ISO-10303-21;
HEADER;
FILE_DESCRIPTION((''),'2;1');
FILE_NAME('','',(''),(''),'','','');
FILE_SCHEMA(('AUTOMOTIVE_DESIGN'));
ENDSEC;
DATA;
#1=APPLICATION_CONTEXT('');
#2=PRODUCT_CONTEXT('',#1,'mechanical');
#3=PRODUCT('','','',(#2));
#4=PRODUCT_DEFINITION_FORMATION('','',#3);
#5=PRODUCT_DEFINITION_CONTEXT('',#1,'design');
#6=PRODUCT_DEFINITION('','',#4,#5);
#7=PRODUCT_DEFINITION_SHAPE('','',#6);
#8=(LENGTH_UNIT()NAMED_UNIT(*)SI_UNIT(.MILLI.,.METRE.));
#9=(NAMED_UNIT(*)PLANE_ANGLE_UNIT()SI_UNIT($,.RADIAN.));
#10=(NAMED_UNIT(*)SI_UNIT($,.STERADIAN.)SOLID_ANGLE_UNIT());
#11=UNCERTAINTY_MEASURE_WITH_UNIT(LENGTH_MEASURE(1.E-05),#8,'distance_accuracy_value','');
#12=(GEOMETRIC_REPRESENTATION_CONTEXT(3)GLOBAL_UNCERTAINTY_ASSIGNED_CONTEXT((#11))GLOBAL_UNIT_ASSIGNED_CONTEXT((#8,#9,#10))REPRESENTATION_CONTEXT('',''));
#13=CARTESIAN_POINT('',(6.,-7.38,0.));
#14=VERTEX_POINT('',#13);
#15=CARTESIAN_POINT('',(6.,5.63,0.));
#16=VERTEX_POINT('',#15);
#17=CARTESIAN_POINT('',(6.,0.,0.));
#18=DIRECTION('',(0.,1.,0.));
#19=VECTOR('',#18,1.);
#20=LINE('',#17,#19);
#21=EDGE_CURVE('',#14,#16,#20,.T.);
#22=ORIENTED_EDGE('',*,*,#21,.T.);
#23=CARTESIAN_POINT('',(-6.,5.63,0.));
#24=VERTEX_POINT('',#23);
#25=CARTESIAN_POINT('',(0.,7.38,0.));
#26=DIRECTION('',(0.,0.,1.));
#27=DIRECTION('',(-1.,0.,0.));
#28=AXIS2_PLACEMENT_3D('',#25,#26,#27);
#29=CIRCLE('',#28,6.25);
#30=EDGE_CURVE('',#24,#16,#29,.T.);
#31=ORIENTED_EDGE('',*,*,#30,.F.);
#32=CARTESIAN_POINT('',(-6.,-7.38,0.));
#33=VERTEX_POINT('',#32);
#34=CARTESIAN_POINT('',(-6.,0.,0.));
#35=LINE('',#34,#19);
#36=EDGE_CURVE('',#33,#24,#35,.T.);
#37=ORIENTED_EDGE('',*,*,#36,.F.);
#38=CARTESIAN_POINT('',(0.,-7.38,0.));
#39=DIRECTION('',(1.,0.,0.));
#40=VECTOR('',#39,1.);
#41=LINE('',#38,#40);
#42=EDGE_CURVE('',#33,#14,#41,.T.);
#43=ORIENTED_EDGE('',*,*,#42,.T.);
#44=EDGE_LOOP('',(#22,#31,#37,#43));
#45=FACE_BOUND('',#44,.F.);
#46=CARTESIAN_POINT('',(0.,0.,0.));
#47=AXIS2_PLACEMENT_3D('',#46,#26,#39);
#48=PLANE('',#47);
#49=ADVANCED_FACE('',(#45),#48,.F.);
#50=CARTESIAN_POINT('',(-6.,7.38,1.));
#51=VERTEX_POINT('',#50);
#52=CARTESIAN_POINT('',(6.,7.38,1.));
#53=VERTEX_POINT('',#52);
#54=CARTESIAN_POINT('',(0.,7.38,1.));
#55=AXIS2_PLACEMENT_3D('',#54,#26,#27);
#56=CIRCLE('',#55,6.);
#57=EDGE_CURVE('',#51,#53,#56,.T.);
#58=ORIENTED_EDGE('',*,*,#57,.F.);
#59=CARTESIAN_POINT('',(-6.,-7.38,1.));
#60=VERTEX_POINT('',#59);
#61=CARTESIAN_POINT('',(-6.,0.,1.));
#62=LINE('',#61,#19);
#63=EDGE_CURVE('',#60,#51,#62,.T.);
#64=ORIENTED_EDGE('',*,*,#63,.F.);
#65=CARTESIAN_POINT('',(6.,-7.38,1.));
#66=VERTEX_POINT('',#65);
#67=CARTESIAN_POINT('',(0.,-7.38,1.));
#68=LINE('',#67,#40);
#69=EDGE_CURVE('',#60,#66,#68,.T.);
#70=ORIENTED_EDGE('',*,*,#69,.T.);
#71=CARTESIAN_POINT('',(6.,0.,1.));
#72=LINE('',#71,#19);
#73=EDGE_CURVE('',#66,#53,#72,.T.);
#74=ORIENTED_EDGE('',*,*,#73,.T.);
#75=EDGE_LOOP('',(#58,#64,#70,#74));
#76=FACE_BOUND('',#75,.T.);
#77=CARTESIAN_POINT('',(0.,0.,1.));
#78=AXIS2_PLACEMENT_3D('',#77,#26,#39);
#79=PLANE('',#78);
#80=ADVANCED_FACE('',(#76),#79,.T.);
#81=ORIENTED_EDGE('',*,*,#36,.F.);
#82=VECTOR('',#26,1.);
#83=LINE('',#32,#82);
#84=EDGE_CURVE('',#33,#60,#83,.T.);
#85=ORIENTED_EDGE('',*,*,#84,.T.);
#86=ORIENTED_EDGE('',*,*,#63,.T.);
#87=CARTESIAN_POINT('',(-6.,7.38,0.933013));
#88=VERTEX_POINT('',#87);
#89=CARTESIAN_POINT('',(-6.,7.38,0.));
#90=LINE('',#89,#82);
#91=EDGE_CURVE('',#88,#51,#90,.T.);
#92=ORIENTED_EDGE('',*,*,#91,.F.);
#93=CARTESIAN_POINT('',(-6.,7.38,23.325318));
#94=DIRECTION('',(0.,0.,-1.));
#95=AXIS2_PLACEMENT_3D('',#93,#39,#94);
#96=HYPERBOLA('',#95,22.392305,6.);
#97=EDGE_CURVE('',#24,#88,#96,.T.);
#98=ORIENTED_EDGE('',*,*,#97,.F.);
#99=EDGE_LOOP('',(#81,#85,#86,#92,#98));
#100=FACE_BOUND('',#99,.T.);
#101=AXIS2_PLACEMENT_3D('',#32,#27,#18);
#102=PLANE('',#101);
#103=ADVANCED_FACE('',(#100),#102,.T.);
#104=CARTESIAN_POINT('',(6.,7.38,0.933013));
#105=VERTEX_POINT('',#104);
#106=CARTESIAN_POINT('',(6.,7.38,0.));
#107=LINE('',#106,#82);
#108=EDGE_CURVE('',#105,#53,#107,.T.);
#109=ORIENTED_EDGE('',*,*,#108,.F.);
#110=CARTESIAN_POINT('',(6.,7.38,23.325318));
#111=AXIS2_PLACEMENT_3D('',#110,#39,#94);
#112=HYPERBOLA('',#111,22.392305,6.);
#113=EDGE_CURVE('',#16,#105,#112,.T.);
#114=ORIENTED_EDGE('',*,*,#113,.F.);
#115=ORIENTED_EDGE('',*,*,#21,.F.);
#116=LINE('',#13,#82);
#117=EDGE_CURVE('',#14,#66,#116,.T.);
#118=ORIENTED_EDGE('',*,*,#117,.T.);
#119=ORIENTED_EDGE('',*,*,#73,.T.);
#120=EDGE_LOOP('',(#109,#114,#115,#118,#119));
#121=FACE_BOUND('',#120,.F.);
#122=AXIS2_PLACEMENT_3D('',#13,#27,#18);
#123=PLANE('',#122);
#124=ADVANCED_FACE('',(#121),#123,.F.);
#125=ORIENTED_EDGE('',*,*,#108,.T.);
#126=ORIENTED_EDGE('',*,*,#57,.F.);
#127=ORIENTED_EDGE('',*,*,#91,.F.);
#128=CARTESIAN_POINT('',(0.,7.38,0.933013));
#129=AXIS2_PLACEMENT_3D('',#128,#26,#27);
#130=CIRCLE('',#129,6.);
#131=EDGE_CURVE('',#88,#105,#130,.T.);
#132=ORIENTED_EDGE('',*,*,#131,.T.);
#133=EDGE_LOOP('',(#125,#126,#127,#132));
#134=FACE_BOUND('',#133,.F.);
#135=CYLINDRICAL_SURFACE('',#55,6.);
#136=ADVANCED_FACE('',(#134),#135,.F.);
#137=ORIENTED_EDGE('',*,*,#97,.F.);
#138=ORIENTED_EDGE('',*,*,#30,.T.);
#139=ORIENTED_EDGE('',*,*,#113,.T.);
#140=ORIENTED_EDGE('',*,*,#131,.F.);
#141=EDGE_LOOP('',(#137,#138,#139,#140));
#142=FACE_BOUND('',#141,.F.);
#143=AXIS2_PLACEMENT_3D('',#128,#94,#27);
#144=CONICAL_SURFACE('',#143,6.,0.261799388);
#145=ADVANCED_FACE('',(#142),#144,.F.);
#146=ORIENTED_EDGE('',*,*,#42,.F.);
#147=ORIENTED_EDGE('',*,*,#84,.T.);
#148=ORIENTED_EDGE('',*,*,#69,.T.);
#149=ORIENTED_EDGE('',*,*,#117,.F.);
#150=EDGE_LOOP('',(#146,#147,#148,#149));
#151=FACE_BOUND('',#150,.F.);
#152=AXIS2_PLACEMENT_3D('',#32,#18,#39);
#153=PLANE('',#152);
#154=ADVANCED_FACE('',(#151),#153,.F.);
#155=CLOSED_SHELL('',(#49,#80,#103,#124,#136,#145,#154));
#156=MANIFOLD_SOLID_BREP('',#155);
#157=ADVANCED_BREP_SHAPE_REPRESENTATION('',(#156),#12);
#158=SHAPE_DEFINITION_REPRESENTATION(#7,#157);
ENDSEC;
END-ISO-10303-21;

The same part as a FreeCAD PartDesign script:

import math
import FreeCAD as App
import Part
import Sketcher
from FreeCAD import Vector


def edges_at(feature, points):
    """Names of the edges that pass closest to the given points."""
    edges = feature.Shape.Edges
    near = lambda p: min(range(len(edges)), key=lambda i: edges[i].distToShape(Part.Vertex(*p))[0])
    return sorted({f"Edge{near(p) + 1}" for p in points})


def add_polygon(sketch, points):
    """Adds a closed chain of lines whose ends are joined by coincident constraints."""
    first, n = sketch.GeometryCount, len(points)
    for a, b in zip(points, points[1:] + points[:1]):
        sketch.addGeometry(Part.LineSegment(App.Vector(*a, 0), App.Vector(*b, 0)), False)
    for i in range(n):
        sketch.addConstraint(Sketcher.Constraint("Coincident", first + i, 2, first + (i + 1) % n, 1))

doc = App.newDocument("Part")
body = doc.addObject("PartDesign::Body", "Body")

# Sketch on XY plane
sketch1 = doc.addObject("Sketcher::SketchObject", "Sketch")
body.addObject(sketch1)
sketch1.AttachmentSupport = (doc.XY_Plane, [""])
sketch1.MapMode = "FlatFace"
add_polygon(sketch1, [(-6, 7), (-6, -7), (6, -7), (6, 7)])  # lines 0-3
sketch1.addConstraint([
    Sketcher.Constraint("Vertical", 0),
    Sketcher.Constraint("Horizontal", 1),
    Sketcher.Constraint("Vertical", 2),
    Sketcher.Constraint("Horizontal", 3),
    Sketcher.Constraint("Symmetric", 0, 2, 2, 2, -1, 1),
    Sketcher.Constraint("DistanceX", 1, 1, 1, 2, 12.0),
    Sketcher.Constraint("DistanceY", 0, 2, 0, 1, 14.76),
])
pad1 = doc.addObject("PartDesign::Pad", "Pad")
body.addObject(pad1)
pad1.Profile = sketch1
pad1.Length = 1

# Sketch on XY plane
sketch2 = doc.addObject("Sketcher::SketchObject", "Sketch001")
body.addObject(sketch2)
sketch2.AttachmentSupport = (doc.XY_Plane, [""])
sketch2.MapMode = "FlatFace"
sketch2.AttachmentOffset = App.Placement(Vector(0, 0, 1), App.Rotation())
sketch2.addGeometry([
    Part.ArcOfCircle(Part.Circle(Vector(0, 7, 0), Vector(0, 0, 1), 6), math.radians(180), math.radians(360)),
    Part.LineSegment(Vector(6, 7, 0), Vector(-6, 7, 0)),
], False)
sketch2.addConstraint([
    Sketcher.Constraint("Coincident", 0, 1, 1, 2),
    Sketcher.Constraint("Coincident", 1, 1, 0, 2),
    Sketcher.Constraint("Horizontal", 1),
    Sketcher.Constraint("PointOnObject", 0, 3, -2),
    Sketcher.Constraint("Radius", 0, 6.0),
    Sketcher.Constraint("DistanceY", -1, 1, 0, 3, 7.38),
    Sketcher.Constraint("DistanceY", -1, 1, 0, 1, 7.38),
])
pocket1 = doc.addObject("PartDesign::Pocket", "Pocket")
body.addObject(pocket1)
pocket1.Profile = sketch2
pocket1.Type = "ThroughAll"
pocket1.Midplane = True
doc.recompute()

chamfer = doc.addObject("PartDesign::Chamfer", "Chamfer")
body.addObject(chamfer)
chamfer.Base = (pocket1, edges_at(pocket1, [(0, 1.38, 0)]))
chamfer.ChamferType = "Two distances"
chamfer.Size = 0.25
chamfer.Size2 = 0.933013
chamfer.FlipDirection = True

doc.recompute()
